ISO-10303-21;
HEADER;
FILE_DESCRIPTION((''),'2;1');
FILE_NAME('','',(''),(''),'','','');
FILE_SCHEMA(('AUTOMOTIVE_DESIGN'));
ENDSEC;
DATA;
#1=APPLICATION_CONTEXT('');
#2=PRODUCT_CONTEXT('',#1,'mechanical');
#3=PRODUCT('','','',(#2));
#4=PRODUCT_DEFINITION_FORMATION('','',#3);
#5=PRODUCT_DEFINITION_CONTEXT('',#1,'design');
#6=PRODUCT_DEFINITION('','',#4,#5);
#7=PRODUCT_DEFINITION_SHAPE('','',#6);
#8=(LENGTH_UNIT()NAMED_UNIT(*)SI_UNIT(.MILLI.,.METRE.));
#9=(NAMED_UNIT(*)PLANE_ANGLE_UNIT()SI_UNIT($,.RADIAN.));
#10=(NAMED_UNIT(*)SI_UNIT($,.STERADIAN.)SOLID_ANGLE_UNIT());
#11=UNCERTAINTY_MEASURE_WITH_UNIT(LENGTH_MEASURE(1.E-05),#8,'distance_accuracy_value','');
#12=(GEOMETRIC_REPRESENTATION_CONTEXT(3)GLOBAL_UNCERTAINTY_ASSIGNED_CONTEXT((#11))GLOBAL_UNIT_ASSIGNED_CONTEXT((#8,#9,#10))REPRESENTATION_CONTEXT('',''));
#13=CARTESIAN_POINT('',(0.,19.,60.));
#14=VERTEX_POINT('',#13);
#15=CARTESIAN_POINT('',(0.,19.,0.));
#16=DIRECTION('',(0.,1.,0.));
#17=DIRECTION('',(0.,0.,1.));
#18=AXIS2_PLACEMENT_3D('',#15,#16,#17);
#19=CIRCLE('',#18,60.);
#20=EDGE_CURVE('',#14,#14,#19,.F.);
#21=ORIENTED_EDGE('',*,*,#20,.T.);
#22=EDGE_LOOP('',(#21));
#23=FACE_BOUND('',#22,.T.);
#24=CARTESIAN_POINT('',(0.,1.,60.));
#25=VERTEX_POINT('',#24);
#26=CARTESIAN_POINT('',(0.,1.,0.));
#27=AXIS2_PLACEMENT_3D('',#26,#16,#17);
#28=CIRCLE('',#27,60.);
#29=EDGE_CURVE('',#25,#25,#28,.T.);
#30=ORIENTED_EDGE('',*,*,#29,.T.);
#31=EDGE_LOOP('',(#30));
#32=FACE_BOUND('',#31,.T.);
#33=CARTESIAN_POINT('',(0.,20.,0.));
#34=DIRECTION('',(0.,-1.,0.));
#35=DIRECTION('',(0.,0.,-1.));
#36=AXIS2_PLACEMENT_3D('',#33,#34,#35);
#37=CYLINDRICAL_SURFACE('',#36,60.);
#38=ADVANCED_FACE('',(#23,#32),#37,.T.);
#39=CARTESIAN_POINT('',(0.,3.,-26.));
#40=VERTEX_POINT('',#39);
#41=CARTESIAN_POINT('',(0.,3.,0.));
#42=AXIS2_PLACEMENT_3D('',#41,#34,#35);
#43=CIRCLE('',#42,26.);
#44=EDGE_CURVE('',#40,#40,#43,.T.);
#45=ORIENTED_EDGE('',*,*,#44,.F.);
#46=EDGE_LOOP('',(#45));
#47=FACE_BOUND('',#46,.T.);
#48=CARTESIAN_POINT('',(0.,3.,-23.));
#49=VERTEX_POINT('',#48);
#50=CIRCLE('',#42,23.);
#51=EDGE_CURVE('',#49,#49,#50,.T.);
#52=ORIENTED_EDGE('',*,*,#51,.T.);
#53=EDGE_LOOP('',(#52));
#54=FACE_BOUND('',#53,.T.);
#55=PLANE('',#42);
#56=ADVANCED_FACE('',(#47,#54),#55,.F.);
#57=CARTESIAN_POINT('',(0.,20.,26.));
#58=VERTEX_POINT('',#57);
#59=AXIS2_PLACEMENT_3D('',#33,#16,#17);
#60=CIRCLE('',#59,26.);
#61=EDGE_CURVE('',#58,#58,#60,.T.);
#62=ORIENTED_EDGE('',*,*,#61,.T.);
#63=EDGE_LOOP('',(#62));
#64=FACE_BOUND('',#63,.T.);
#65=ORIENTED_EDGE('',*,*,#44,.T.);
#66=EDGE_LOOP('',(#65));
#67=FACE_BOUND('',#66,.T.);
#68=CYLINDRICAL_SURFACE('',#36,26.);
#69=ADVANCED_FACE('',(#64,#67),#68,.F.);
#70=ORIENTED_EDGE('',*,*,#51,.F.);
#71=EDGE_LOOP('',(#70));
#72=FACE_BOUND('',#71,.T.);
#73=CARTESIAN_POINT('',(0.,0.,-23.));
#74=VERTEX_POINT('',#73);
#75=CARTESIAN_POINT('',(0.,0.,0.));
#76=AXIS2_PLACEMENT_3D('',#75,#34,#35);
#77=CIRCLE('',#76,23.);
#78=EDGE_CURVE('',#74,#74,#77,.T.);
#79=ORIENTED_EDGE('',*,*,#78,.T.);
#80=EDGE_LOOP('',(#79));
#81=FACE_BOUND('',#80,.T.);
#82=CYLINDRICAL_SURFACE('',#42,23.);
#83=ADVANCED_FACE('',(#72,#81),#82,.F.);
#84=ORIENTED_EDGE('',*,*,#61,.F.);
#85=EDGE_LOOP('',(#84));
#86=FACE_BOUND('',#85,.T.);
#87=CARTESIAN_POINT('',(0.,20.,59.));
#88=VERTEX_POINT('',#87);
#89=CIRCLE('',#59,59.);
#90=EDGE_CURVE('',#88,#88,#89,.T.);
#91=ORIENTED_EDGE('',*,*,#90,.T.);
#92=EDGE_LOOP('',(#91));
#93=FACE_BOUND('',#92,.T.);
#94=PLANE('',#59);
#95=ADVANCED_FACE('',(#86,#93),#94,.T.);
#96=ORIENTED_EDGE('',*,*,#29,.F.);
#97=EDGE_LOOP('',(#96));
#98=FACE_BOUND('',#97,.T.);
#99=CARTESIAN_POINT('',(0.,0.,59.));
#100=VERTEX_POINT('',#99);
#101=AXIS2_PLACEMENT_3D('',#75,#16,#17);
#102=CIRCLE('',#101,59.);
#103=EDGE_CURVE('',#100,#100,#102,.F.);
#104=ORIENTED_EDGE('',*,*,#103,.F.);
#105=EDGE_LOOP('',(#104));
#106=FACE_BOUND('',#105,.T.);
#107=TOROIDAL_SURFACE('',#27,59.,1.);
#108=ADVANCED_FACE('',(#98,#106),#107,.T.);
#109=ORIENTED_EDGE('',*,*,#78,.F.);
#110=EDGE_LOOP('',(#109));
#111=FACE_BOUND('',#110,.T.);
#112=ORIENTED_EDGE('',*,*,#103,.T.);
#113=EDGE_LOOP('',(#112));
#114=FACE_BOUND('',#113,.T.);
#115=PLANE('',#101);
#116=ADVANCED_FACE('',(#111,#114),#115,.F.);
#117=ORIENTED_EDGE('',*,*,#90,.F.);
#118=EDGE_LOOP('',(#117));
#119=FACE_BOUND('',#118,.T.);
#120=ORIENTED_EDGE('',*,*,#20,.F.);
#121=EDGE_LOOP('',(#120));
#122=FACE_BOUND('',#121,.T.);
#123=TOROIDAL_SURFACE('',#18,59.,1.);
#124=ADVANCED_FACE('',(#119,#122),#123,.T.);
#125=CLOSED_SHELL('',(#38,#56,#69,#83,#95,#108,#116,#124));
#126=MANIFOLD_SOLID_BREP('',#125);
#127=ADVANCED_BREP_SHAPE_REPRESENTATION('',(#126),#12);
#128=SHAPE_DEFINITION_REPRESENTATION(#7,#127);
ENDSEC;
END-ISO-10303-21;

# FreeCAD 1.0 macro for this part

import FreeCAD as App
import Part
import Sketcher

V = App.Vector
Q = App.Units.Quantity


def edges_at(feature, points):
    """Names of the edges that pass closest to the given points."""
    edges = feature.Shape.Edges
    near = lambda p: min(range(len(edges)), key=lambda i: edges[i].distToShape(Part.Vertex(*p))[0])
    return sorted({f"Edge{near(p) + 1}" for p in points})

doc = App.newDocument("Part")
body = doc.addObject("PartDesign::Body", "Body")

sketch1 = body.newObject("Sketcher::SketchObject", "Sketch")
sketch1.AttachmentSupport = (doc.getObject("XZ_Plane"), [""])
sketch1.MapMode = "FlatFace"
sketch1.addGeometry([
    Part.Circle(V(0, 0, 0), V(0, 0, 1), 60),
    Part.Circle(V(0, 0, 0), V(0, 0, 1), 26),
], False)
sketch1.addConstraint([
    Sketcher.Constraint("Coincident", 0, 3, -1, 1),
    Sketcher.Constraint("Coincident", 1, 3, -1, 1),
    Sketcher.Constraint("Diameter", 0, Q("120 mm")),
    Sketcher.Constraint("Diameter", 1, Q("52 mm")),
])
pad1 = body.newObject("PartDesign::Pad", "Pad")
pad1.Profile = sketch1
pad1.Length = 20
pad1.Reversed = True
doc.recompute()

fillet = body.newObject("PartDesign::Fillet", "Fillet")
fillet.Base = (pad1, edges_at(pad1, [(-60, 0, 0), (-60, 20, 0)]))
fillet.Radius = 1

sketch2 = body.newObject("Sketcher::SketchObject", "Sketch001")
sketch2.AttachmentSupport = (doc.getObject("XZ_Plane"), [""])
sketch2.MapMode = "FlatFace"
sketch2.addGeometry([
    Part.Circle(V(0, 0, 0), V(0, 0, 1), 26),
    Part.Circle(V(0, 0, 0), V(0, 0, 1), 23),
], False)
sketch2.addConstraint([
    Sketcher.Constraint("Coincident", 0, 3, -1, 1),
    Sketcher.Constraint("Coincident", 1, 3, -1, 1),
    Sketcher.Constraint("Diameter", 0, Q("52 mm")),
    Sketcher.Constraint("Diameter", 1, Q("46 mm")),
])
pad2 = body.newObject("PartDesign::Pad", "Pad001")
pad2.Profile = sketch2
pad2.Length = 3
pad2.Reversed = True

doc.recompute()
